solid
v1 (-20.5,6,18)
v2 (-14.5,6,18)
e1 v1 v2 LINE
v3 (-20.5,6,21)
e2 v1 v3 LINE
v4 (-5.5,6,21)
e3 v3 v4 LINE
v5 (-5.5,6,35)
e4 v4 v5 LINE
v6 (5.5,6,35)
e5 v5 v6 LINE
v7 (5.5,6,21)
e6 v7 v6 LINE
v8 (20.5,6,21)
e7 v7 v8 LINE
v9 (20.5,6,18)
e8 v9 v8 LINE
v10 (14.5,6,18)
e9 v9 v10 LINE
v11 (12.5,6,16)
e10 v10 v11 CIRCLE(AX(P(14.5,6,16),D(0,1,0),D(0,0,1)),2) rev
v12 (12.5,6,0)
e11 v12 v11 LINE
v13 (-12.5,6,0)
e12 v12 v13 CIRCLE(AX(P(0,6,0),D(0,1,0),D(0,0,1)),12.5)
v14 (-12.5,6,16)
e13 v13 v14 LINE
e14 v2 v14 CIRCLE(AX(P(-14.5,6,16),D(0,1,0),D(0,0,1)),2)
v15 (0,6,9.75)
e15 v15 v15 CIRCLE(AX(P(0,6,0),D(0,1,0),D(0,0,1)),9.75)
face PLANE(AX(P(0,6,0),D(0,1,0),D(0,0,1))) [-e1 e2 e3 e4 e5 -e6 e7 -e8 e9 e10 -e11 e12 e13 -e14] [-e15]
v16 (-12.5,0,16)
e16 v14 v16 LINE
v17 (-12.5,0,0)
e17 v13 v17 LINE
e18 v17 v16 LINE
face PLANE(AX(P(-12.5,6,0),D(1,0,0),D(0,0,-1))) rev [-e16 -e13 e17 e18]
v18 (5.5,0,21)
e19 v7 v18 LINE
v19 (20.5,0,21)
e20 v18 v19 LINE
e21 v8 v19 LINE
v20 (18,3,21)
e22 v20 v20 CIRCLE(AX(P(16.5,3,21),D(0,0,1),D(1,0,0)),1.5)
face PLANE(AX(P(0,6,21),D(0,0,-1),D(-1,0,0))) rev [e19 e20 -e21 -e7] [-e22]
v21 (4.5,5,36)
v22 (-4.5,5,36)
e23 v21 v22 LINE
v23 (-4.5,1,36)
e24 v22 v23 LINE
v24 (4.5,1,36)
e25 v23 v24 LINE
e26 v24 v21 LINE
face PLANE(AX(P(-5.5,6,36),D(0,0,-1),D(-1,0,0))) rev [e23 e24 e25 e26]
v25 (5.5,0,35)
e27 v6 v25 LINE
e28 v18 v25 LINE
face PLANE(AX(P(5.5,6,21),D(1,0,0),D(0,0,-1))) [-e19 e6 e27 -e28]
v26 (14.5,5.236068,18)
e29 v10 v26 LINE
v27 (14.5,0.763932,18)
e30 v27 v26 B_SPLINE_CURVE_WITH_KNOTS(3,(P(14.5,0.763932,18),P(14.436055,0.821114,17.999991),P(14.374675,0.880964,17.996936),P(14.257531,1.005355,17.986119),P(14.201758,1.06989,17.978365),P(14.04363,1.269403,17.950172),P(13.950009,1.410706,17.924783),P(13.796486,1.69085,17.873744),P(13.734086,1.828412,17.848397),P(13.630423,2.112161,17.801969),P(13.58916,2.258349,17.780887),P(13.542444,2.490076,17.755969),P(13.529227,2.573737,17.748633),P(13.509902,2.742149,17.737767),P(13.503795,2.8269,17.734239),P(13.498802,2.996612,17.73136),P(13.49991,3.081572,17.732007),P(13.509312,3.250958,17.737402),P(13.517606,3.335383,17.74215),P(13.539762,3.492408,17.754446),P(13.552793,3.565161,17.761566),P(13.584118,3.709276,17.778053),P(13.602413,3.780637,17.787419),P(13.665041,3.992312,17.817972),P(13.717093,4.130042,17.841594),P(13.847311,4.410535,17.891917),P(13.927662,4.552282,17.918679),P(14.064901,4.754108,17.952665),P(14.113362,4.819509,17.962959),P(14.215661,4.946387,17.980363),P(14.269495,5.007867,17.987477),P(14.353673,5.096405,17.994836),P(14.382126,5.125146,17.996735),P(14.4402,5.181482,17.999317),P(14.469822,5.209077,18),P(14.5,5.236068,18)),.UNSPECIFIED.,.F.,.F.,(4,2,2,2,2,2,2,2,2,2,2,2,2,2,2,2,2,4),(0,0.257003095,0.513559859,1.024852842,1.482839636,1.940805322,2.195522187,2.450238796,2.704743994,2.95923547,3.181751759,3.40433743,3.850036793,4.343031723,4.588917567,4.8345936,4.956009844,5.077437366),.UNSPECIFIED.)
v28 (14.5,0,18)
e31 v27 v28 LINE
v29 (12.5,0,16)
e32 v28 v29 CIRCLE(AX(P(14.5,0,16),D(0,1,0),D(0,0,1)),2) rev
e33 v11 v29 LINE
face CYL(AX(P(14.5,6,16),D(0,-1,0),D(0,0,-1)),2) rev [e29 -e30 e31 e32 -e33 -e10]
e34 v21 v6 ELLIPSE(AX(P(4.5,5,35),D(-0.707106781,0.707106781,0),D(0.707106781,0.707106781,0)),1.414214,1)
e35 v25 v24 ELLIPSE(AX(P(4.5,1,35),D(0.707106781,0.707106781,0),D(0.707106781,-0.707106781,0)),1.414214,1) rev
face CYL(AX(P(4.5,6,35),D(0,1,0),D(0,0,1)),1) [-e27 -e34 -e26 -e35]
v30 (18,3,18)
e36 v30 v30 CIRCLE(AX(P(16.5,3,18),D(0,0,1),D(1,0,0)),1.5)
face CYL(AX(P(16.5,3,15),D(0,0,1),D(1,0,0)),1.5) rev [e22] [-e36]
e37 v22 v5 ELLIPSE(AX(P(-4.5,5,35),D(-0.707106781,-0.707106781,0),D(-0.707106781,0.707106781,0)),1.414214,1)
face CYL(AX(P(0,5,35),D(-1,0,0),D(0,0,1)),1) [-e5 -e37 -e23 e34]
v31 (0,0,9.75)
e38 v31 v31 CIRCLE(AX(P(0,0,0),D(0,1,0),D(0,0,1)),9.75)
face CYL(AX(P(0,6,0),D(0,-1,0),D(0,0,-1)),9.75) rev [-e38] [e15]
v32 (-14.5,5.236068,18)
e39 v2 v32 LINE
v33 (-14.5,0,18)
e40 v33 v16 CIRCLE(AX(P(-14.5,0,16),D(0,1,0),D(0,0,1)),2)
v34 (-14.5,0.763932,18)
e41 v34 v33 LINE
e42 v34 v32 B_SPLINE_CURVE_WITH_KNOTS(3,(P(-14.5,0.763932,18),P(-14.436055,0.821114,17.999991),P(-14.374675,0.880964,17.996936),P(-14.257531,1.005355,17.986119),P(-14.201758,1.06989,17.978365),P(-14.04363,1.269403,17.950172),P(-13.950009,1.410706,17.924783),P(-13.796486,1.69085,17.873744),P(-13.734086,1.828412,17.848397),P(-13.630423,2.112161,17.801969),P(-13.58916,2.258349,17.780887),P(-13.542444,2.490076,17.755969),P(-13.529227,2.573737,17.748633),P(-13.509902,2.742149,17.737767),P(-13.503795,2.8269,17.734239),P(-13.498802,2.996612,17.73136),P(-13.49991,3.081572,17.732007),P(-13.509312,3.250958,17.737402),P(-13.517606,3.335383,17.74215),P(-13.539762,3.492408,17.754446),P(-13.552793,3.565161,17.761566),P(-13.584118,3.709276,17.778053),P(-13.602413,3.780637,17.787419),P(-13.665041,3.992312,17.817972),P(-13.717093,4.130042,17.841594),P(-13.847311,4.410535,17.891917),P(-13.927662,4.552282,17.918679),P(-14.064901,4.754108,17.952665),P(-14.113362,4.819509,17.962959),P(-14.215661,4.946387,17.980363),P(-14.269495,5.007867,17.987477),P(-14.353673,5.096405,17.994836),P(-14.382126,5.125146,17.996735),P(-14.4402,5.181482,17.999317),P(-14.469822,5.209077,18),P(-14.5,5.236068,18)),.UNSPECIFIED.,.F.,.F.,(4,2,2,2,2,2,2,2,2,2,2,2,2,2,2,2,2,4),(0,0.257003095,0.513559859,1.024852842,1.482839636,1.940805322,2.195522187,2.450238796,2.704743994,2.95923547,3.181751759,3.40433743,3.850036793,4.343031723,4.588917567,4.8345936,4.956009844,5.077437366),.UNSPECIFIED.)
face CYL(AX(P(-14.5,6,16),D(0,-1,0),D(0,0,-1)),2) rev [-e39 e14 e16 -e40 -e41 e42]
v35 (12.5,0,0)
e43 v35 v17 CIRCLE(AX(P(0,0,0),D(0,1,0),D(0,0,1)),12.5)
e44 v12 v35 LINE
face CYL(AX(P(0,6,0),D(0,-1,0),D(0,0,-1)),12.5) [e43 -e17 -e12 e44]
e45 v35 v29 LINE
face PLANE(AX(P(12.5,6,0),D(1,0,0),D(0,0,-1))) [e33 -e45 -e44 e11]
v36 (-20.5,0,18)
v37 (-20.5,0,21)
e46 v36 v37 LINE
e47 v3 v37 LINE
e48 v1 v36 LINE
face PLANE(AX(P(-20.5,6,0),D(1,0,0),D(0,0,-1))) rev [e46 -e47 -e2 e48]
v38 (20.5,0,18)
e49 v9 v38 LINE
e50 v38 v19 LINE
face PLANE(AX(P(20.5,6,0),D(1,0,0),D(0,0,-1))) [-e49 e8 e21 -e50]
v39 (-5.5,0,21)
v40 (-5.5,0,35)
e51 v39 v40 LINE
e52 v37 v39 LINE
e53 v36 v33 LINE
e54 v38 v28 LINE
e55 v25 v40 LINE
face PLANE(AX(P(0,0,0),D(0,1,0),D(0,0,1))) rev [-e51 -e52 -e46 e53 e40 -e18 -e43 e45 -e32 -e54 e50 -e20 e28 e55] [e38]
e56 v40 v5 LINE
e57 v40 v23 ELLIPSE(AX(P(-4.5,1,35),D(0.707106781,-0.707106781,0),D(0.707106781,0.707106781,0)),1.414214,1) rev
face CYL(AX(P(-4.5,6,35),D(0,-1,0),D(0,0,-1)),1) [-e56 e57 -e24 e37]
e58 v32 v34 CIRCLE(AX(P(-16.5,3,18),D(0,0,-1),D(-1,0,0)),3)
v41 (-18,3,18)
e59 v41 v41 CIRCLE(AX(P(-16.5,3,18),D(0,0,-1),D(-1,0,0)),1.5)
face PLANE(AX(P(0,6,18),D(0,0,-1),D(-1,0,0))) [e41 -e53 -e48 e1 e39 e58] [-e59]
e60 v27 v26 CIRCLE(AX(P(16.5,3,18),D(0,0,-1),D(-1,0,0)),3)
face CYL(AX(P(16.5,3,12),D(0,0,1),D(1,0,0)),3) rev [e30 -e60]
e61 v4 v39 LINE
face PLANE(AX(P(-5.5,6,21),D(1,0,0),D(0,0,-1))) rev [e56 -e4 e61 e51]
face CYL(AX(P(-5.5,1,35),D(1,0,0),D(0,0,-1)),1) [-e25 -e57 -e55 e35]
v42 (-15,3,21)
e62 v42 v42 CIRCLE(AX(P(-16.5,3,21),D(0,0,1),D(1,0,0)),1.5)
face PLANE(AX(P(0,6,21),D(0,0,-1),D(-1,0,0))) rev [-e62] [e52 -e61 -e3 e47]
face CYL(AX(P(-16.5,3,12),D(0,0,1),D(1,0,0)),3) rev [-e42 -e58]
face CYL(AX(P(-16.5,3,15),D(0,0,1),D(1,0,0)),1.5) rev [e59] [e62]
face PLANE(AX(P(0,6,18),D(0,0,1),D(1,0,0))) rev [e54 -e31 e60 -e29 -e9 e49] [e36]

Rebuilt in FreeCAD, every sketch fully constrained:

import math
import FreeCAD as App
import Part
import Sketcher

V = App.Vector


def edges_at(feature, points):
    """Names of the edges that pass closest to the given points."""
    edges = feature.Shape.Edges
    near = lambda p: min(range(len(edges)), key=lambda i: edges[i].distToShape(Part.Vertex(*p))[0])
    return sorted({f"Edge{near(p) + 1}" for p in points})

doc = App.newDocument("Part")
body = doc.addObject("PartDesign::Body", "Body")

# Sketch on XZ plane
sketch1 = body.newObject("Sketcher::SketchObject", "Sketch")
sketch1.AttachmentSupport = (doc.getObject("XZ_Plane"), [""])
sketch1.MapMode = "FlatFace"
sketch1.addGeometry([
    Part.ArcOfCircle(Part.Circle(V(0, 0, 0), V(0, 0, 1), 12.5), math.radians(180), math.radians(360)),  # 0
    Part.LineSegment(V(-12.5, 0, 0), V(-12.5, 16, 0)),  # 1
    Part.ArcOfCircle(Part.Circle(V(-14.5, 16, 0), V(0, 0, 1), 2), math.radians(0), math.radians(90)),  # 2
    Part.LineSegment(V(-14.5, 18, 0), V(-20.5, 18, 0)),  # 3
    Part.LineSegment(V(-20.5, 18, 0), V(-20.5, 21, 0)),  # 4
    Part.LineSegment(V(-20.5, 21, 0), V(-5.5, 21, 0)),  # 5
    Part.LineSegment(V(-5.5, 21, 0), V(-5.5, 36, 0)),  # 6
    Part.LineSegment(V(-5.5, 36, 0), V(5.5, 36, 0)),  # 7
    Part.LineSegment(V(5.5, 36, 0), V(5.5, 21, 0)),  # 8
    Part.LineSegment(V(5.5, 21, 0), V(20.5, 21, 0)),  # 9
    Part.LineSegment(V(20.5, 21, 0), V(20.5, 18, 0)),  # 10
    Part.LineSegment(V(20.5, 18, 0), V(14.5, 18, 0)),  # 11
    Part.ArcOfCircle(Part.Circle(V(14.5, 16, 0), V(0, 0, 1), 2), math.radians(90), math.radians(180)),  # 12
    Part.LineSegment(V(12.5, 16, 0), V(12.5, 0, 0)),  # 13
    Part.Circle(V(0, 0, 0), V(0, 0, 1), 9.8),  # 14
], False)
sketch1.addConstraint([
    Sketcher.Constraint("Tangent", 0, 1, 1, 1),
    Sketcher.Constraint("Tangent", 1, 2, 2, 1),
    Sketcher.Constraint("Tangent", 2, 2, 3, 1),
    Sketcher.Constraint("Coincident", 3, 2, 4, 1),
    Sketcher.Constraint("Coincident", 4, 2, 5, 1),
    Sketcher.Constraint("Coincident", 5, 2, 6, 1),
    Sketcher.Constraint("Coincident", 6, 2, 7, 1),
    Sketcher.Constraint("Coincident", 7, 2, 8, 1),
    Sketcher.Constraint("Coincident", 8, 2, 9, 1),
    Sketcher.Constraint("Coincident", 9, 2, 10, 1),
    Sketcher.Constraint("Coincident", 10, 2, 11, 1),
    Sketcher.Constraint("Tangent", 11, 2, 12, 1),
    Sketcher.Constraint("Tangent", 12, 2, 13, 1),
    Sketcher.Constraint("Tangent", 13, 2, 0, 2),
    Sketcher.Constraint("Vertical", 1),
    Sketcher.Constraint("Horizontal", 3),
    Sketcher.Constraint("Vertical", 4),
    Sketcher.Constraint("Horizontal", 5),
    Sketcher.Constraint("Vertical", 6),
    Sketcher.Constraint("Horizontal", 7),
    Sketcher.Constraint("Vertical", 8),
    Sketcher.Constraint("Horizontal", 9),
    Sketcher.Constraint("Vertical", 10),
    Sketcher.Constraint("Horizontal", 11),
    Sketcher.Constraint("Vertical", 13),
    Sketcher.Constraint("Coincident", 0, 3, -1, 1),
    Sketcher.Constraint("Coincident", 14, 3, -1, 1),
    Sketcher.Constraint("Equal", 2, 12),
    Sketcher.Constraint("Symmetric", 5, 2, 8, 2, -2),
    Sketcher.Constraint("Symmetric", 3, 2, 10, 2, -2),
    Sketcher.Constraint("Equal", 9, 6),
    Sketcher.Constraint("Radius", 2, 2.0),
    Sketcher.Constraint("Diameter", 14, 19.5),
    Sketcher.Constraint("Radius", 0, 12.5),
    Sketcher.Constraint("DistanceX", 3, 2, 3, 1, 6.0),
    Sketcher.Constraint("DistanceX", 5, 1, 5, 2, 15.0),
    Sketcher.Constraint("DistanceY", 1, 1, 1, 2, 16.0),
    Sketcher.Constraint("DistanceY", 4, 1, 4, 2, 3.0),
])
pad1 = body.newObject("PartDesign::Pad", "Pad")
pad1.Profile = sketch1
pad1.Length = 6
pad1.Reversed = True

# Sketch on XY plane
sketch2 = body.newObject("Sketcher::SketchObject", "Sketch001")
sketch2.AttachmentSupport = (doc.getObject("XY_Plane"), [""])
sketch2.MapMode = "FlatFace"
sketch2.AttachmentOffset = App.Placement(V(0, 0, 21), App.Rotation())
sketch2.addGeometry([
    Part.Circle(V(-16.5, 3, 0), V(0, 0, 1), 1.5),
    Part.Circle(V(16.5, 3, 0), V(0, 0, 1), 1.5),
], False)
sketch2.addConstraint([
    Sketcher.Constraint("Equal", 0, 1),
    Sketcher.Constraint("Symmetric", 0, 3, 1, 3, -2),
    Sketcher.Constraint("Diameter", 0, 3.0),
    Sketcher.Constraint("DistanceY", -1, 1, 0, 3, 3.0),
    Sketcher.Constraint("DistanceX", 0, 3, 1, 3, 33.0),
])
pocket1 = body.newObject("PartDesign::Pocket", "Pocket")
pocket1.Profile = sketch2
pocket1.Length = 6

# Sketch on XY plane
sketch3 = body.newObject("Sketcher::SketchObject", "Sketch002")
sketch3.AttachmentSupport = (doc.getObject("XY_Plane"), [""])
sketch3.MapMode = "FlatFace"
sketch3.AttachmentOffset = App.Placement(V(0, 0, 18), App.Rotation())
sketch3.addGeometry([
    Part.Circle(V(16.5, 3, 0), V(0, 0, 1), 3),
    Part.Circle(V(-16.5, 3, 0), V(0, 0, 1), 3),
], False)
sketch3.addConstraint([
    Sketcher.Constraint("Equal", 0, 1),
    Sketcher.Constraint("Symmetric", 0, 3, 1, 3, -2),
    Sketcher.Constraint("Diameter", 0, 6.0),
    Sketcher.Constraint("DistanceY", -1, 1, 0, 3, 3.0),
    Sketcher.Constraint("DistanceX", 1, 3, 0, 3, 33.0),
])
pocket2 = body.newObject("PartDesign::Pocket", "Pocket001")
pocket2.Profile = sketch3
pocket2.Length = 6
doc.recompute()

fillet = body.newObject("PartDesign::Fillet", "Fillet")
fillet.Base = (pocket2, edges_at(pocket2, [
    (5.5, 3, 36),
    (-5.5, 3, 36),
    (0, 6, 36),
    (0, 0, 36),
]))
fillet.Radius = 1

doc.recompute()
